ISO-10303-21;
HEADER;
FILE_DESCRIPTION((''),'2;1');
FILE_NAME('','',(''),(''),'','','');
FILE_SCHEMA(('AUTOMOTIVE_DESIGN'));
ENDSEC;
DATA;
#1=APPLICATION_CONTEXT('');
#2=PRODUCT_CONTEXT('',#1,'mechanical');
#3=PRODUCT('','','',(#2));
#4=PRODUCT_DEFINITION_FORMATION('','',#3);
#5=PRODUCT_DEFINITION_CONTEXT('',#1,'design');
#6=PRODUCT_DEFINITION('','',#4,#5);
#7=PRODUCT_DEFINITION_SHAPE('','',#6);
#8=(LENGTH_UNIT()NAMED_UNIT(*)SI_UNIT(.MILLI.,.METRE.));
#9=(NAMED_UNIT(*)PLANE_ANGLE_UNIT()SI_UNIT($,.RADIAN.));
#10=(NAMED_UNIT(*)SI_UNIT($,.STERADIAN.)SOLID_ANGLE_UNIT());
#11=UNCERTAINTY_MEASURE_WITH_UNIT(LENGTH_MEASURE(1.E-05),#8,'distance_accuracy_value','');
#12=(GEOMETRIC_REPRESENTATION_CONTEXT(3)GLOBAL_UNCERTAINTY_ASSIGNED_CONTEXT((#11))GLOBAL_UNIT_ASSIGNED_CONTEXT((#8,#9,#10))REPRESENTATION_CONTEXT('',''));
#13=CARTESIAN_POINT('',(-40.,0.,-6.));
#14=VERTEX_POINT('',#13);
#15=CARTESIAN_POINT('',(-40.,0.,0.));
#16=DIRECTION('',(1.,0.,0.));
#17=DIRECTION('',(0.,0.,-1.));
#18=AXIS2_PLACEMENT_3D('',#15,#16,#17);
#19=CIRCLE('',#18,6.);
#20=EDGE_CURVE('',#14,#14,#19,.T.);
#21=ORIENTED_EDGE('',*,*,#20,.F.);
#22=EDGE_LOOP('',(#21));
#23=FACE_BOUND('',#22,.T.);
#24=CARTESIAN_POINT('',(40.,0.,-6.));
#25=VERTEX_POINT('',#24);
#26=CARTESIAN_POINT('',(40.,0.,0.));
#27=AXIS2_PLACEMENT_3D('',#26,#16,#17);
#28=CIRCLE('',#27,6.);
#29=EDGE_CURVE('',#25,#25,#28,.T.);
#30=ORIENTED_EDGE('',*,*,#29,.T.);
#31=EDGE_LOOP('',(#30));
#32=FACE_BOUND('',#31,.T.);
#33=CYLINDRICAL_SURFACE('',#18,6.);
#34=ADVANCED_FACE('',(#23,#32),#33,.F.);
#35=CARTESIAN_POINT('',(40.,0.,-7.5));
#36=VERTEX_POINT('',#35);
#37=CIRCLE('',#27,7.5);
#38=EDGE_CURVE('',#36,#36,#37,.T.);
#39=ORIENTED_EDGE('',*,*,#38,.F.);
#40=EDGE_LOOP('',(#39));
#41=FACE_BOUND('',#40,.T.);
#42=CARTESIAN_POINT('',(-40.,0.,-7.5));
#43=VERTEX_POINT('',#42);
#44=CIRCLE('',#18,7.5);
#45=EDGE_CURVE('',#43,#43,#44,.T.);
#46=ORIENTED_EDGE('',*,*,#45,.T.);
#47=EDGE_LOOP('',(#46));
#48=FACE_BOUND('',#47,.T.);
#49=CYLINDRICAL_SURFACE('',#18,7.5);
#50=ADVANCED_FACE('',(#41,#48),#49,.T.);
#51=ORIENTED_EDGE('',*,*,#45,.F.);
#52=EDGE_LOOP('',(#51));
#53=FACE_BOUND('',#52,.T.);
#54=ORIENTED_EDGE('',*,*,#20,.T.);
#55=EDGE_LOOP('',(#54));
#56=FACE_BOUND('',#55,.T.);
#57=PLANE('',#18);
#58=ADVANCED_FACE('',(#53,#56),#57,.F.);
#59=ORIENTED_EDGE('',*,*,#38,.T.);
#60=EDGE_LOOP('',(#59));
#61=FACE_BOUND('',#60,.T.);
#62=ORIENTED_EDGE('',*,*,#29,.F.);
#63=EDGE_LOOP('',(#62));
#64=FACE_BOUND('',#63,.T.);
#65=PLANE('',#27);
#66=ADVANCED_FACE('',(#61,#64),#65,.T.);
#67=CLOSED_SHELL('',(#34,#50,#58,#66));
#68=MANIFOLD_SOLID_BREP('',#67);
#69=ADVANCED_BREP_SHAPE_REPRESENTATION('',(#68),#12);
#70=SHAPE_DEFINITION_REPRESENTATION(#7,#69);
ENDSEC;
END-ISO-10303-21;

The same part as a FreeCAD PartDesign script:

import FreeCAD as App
import Part
import Sketcher

doc = App.newDocument("Part")
body = doc.addObject("PartDesign::Body", "Body")

sketch1 = body.newObject("Sketcher::SketchObject", "Sketch")
sketch1.AttachmentSupport = (doc.getObject("YZ_Plane"), [""])
sketch1.MapMode = "FlatFace"
sketch1.addGeometry(Part.Circle(App.Vector(0, 0, 0), App.Vector(0, 0, 1), 8), False)
sketch1.addGeometry(Part.Circle(App.Vector(0, 0, 0), App.Vector(0, 0, 1), 6), False)
sketch1.addConstraint(Sketcher.Constraint("Coincident", 0, 3, -1, 1))
sketch1.addConstraint(Sketcher.Constraint("Coincident", 1, 3, -1, 1))
sketch1.addConstraint(Sketcher.Constraint("Diameter", 0, 15.0))
sketch1.addConstraint(Sketcher.Constraint("Diameter", 1, 12.0))
pad1 = body.newObject("PartDesign::Pad", "Pad")
pad1.Profile = sketch1
pad1.Type = "TwoLengths"
pad1.Length = 40
pad1.Length2 = 40

doc.recompute()
